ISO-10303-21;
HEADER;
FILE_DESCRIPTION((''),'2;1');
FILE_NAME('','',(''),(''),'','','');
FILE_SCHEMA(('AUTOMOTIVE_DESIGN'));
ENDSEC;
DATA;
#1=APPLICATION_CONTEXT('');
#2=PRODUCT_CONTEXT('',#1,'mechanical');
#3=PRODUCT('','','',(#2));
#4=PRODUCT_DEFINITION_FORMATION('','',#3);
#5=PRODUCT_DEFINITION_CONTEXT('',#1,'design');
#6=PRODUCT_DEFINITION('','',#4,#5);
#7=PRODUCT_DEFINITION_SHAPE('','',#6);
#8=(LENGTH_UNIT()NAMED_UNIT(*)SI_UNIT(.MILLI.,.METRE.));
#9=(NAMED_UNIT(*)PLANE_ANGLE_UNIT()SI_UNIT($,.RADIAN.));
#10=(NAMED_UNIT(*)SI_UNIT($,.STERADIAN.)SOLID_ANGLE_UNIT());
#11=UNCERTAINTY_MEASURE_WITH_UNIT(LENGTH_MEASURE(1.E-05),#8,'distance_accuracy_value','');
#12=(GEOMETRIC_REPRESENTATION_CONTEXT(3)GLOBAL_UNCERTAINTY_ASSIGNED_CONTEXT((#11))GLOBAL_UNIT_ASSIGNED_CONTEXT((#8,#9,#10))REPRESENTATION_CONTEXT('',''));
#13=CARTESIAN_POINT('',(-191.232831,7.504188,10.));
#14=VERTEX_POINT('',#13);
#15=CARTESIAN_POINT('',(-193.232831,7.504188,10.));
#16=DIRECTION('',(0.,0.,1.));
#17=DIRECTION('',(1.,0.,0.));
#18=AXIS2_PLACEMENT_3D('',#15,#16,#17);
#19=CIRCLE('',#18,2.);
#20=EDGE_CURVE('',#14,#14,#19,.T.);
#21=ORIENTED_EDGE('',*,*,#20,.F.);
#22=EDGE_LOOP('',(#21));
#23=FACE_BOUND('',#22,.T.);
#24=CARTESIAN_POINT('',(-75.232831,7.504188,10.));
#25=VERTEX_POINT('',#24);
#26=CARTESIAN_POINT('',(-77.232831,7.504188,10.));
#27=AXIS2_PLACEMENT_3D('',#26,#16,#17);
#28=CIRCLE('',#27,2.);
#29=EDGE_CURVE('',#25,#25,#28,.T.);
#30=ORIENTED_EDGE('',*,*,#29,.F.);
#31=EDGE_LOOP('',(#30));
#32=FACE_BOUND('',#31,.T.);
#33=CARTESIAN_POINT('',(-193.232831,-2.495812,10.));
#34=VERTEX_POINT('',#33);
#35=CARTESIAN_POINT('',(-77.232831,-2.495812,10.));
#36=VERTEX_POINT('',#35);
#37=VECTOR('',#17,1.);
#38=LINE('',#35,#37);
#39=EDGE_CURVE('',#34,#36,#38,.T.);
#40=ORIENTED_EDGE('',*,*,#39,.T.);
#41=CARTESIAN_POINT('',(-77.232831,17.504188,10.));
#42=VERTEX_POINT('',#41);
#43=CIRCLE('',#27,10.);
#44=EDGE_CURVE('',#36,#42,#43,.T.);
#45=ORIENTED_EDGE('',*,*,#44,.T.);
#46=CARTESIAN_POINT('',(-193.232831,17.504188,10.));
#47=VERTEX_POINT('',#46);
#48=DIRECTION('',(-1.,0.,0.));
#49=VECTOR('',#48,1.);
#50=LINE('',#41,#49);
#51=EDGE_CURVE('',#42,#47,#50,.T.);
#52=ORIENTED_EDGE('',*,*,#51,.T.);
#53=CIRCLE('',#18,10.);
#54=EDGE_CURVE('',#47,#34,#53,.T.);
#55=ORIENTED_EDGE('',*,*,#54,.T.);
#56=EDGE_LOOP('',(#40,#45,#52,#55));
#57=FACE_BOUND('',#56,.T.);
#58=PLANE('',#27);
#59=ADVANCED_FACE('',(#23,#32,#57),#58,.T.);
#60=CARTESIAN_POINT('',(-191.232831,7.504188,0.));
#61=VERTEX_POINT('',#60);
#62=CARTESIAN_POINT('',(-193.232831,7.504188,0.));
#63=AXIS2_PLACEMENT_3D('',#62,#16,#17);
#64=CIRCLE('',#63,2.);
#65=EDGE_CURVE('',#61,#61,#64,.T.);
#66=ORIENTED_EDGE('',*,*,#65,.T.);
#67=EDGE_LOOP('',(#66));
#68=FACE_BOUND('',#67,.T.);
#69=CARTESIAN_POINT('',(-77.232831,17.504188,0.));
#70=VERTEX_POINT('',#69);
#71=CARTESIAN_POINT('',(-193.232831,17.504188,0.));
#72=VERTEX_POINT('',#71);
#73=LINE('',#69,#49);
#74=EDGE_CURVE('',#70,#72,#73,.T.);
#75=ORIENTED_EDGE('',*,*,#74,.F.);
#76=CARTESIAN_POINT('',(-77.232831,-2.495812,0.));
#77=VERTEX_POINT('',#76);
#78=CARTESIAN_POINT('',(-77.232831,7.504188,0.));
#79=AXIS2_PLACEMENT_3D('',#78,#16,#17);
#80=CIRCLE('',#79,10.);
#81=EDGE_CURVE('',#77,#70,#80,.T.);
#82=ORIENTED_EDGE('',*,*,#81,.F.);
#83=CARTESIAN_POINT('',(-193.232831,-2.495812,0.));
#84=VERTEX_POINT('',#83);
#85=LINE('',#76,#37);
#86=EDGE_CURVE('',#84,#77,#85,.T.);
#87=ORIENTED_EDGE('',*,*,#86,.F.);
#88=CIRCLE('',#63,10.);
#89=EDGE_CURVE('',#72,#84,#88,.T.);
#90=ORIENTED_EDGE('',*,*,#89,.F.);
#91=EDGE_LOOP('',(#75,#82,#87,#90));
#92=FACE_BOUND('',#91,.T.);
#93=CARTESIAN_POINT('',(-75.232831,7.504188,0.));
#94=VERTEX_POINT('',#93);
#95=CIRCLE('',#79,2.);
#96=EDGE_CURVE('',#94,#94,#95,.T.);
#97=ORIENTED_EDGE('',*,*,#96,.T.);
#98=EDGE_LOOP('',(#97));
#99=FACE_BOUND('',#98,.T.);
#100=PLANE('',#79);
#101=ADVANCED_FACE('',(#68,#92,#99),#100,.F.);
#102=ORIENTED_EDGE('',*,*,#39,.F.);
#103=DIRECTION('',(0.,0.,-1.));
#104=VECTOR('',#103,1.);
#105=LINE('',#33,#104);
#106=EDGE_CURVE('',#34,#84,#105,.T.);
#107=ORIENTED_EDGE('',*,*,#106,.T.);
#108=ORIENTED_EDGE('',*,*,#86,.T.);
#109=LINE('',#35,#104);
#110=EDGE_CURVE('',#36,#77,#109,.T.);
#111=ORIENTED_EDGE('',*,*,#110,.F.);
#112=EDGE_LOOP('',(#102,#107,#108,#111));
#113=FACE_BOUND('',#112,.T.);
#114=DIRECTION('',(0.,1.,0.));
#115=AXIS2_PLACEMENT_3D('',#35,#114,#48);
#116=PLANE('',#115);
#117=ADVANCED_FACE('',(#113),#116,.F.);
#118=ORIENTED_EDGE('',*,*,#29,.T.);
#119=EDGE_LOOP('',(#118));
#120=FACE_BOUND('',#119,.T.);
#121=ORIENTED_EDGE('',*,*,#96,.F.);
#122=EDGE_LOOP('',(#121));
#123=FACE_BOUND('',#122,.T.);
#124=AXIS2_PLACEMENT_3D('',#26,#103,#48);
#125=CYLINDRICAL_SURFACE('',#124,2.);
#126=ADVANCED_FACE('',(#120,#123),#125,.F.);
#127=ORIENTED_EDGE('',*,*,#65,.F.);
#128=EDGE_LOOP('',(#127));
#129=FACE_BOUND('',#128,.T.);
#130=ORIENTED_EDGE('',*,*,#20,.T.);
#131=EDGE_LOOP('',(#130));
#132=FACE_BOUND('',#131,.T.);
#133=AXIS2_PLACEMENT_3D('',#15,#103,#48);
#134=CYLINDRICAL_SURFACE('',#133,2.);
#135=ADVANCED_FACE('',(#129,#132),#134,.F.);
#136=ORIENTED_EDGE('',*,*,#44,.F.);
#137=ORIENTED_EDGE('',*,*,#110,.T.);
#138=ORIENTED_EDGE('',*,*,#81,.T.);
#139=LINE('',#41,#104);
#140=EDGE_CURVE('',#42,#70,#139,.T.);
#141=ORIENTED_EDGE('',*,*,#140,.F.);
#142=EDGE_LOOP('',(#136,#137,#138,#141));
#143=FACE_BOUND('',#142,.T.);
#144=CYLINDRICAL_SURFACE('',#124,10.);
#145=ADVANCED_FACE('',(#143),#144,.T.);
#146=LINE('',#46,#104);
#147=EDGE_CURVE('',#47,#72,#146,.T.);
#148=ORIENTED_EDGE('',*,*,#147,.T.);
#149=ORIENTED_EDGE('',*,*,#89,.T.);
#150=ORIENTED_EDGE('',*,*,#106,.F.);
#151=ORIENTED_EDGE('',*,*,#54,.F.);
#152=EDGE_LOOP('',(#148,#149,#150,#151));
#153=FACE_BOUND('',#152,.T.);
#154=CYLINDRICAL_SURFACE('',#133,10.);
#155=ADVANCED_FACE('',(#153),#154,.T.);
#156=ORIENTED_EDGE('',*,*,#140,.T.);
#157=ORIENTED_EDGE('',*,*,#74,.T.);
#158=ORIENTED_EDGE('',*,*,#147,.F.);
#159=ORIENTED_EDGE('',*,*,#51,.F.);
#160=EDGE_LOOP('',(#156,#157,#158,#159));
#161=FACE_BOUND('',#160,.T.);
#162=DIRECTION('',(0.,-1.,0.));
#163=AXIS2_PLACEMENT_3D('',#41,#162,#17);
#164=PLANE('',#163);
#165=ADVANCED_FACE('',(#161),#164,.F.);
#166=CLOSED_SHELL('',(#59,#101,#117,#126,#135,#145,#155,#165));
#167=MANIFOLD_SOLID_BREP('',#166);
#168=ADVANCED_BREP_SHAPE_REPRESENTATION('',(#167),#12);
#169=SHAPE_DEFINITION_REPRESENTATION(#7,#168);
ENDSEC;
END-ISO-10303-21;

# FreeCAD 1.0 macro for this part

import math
import FreeCAD as App
import Part
import Sketcher

V = App.Vector

doc = App.newDocument("Part")
params = doc.addObject("Spreadsheet::Sheet", "Params")
for row, (alias, value) in enumerate([
    ("sketch1_diameter", "4 mm"),
    ("sketch1_radius", "10 mm"),
    ("sketch1_width", "116 mm"),
    ("pad1_length", "10 mm"),
], start=1):
    params.set(f"A{row}", alias)
    params.set(f"B{row}", "=" + value)
    params.setAlias(f"B{row}", alias)

body = doc.addObject("PartDesign::Body", "Body")

# Sketch on XY plane
sketch1 = body.newObject("Sketcher::SketchObject", "Sketch")
sketch1.AttachmentSupport = (doc.getObject("XY_Plane"), [""])
sketch1.MapMode = "FlatFace"
sketch1.addGeometry([
    Part.LineSegment(V(-193.2, -2.5, 0), V(-77.2, -2.5, 0)),  # 0
    Part.ArcOfCircle(Part.Circle(V(-77.2, 7.5, 0), V(0, 0, 1), 10), math.radians(-90), math.radians(90)),  # 1
    Part.LineSegment(V(-77.2, 17.5, 0), V(-193.2, 17.5, 0)),  # 2
    Part.ArcOfCircle(Part.Circle(V(-193.2, 7.5, 0), V(0, 0, 1), 10), math.radians(90), math.radians(270)),  # 3
    Part.Circle(V(-77.2, 7.5, 0), V(0, 0, 1), 2),  # 4
    Part.Circle(V(-193.2, 7.5, 0), V(0, 0, 1), 2),  # 5
], False)
sketch1.addConstraint([
    Sketcher.Constraint("Tangent", 0, 2, 1, 1),
    Sketcher.Constraint("Tangent", 1, 2, 2, 1),
    Sketcher.Constraint("Tangent", 2, 2, 3, 1),
    Sketcher.Constraint("Tangent", 3, 2, 0, 1),
    Sketcher.Constraint("Horizontal", 0),
    Sketcher.Constraint("Horizontal", 2),
    Sketcher.Constraint("Coincident", 4, 3, 1, 3),
    Sketcher.Constraint("Coincident", 5, 3, 3, 3),
    Sketcher.Constraint("Equal", 4, 5),
    Sketcher.Constraint("Diameter", 4, 4.0),
    Sketcher.Constraint("Radius", 1, 10.0),
    Sketcher.Constraint("DistanceX", 0, 1, 0, 2, 116.0),
    Sketcher.Constraint("DistanceX", 1, 3, -1, 1, 77.232831),
    Sketcher.Constraint("DistanceY", -1, 1, 1, 3, 7.504188),
])
sketch1.setExpression("Constraints[9]", "Params.sketch1_diameter")
sketch1.setExpression("Constraints[10]", "Params.sketch1_radius")
sketch1.setExpression("Constraints[11]", "Params.sketch1_width")
pad1 = body.newObject("PartDesign::Pad", "Pad")
pad1.Profile = sketch1
pad1.setExpression("Length", "Params.pad1_length")

doc.recompute()
